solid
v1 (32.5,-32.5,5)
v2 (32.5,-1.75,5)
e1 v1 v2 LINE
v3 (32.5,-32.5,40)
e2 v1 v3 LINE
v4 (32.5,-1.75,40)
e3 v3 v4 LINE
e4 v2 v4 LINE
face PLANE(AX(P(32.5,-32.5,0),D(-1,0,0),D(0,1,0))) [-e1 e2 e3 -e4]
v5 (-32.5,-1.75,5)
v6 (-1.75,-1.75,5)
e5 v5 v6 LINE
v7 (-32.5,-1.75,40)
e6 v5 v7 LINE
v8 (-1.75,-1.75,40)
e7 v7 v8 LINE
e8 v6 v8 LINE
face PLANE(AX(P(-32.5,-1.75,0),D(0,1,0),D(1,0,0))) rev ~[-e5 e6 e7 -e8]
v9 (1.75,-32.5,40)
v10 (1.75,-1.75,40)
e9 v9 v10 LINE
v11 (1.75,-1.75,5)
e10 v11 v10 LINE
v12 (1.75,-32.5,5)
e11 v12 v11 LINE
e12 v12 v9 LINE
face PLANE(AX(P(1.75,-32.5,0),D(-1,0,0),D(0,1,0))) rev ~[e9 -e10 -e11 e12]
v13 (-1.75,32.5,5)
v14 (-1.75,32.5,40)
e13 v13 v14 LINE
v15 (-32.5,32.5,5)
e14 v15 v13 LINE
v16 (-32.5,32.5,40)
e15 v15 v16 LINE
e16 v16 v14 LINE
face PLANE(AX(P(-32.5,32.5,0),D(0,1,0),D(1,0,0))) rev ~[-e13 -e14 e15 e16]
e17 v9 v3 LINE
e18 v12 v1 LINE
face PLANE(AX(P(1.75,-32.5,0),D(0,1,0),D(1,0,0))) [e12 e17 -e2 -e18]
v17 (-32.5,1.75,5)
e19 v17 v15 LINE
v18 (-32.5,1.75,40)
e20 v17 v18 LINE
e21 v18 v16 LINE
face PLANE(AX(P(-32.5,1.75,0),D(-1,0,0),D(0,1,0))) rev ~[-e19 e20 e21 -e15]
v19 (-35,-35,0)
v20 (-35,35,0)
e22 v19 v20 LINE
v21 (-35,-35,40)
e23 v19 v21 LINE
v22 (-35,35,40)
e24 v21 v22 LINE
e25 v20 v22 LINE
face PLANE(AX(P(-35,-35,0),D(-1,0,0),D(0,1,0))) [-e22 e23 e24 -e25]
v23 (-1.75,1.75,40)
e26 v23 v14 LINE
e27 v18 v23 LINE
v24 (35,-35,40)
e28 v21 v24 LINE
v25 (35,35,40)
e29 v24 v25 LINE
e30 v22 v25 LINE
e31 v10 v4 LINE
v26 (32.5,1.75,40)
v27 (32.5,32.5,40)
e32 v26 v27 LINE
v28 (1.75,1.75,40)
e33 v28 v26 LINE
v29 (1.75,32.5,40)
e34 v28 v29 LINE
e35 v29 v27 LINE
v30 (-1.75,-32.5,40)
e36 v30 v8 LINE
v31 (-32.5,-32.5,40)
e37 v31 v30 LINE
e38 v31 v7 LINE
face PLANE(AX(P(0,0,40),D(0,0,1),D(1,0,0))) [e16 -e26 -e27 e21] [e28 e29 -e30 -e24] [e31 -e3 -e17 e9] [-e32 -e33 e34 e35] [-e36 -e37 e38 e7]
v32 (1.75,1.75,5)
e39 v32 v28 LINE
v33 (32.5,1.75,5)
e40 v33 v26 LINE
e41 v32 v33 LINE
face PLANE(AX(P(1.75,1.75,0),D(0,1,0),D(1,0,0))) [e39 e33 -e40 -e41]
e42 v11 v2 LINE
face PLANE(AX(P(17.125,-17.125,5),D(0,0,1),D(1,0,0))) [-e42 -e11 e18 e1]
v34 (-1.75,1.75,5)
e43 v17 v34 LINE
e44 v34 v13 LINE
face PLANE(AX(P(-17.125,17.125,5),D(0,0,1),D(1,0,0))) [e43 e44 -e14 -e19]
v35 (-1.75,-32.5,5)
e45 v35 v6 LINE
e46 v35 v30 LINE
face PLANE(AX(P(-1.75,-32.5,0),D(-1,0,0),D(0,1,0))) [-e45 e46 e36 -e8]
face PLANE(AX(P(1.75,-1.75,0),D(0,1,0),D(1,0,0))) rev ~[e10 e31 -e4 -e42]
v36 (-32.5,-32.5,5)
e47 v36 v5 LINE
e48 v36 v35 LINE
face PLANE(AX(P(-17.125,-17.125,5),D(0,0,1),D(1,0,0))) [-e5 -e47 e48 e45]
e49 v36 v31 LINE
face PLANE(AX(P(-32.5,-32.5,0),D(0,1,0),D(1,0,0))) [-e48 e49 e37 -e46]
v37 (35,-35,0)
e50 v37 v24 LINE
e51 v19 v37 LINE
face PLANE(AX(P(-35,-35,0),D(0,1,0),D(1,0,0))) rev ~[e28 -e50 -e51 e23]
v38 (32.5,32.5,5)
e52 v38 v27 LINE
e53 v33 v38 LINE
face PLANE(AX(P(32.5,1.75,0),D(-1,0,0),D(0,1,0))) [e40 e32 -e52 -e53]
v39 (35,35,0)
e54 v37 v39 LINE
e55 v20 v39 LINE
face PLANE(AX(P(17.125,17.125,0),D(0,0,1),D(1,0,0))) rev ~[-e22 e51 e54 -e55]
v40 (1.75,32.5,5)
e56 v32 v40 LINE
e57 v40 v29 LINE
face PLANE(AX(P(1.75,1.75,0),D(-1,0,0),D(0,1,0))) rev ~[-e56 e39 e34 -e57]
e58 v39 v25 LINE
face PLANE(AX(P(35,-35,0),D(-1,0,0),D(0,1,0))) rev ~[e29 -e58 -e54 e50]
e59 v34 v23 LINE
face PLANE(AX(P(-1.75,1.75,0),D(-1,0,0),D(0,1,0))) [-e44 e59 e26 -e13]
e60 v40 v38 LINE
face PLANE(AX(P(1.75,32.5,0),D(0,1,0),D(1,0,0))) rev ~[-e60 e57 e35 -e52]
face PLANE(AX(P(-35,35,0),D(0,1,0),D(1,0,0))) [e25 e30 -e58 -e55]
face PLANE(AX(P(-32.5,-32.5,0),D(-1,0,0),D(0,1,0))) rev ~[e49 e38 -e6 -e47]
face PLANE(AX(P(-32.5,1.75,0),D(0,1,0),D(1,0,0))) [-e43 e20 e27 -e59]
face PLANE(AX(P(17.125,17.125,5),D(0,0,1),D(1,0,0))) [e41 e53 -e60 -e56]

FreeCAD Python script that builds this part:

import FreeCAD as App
import Part
import Sketcher
from FreeCAD import Vector
Q = App.Units.Quantity


def add_polygon(sketch, points):
    """Adds a closed chain of lines whose ends are joined by coincident constraints."""
    first, n = sketch.GeometryCount, len(points)
    for a, b in zip(points, points[1:] + points[:1]):
        sketch.addGeometry(Part.LineSegment(App.Vector(*a, 0), App.Vector(*b, 0)), False)
    for i in range(n):
        sketch.addConstraint(Sketcher.Constraint("Coincident", first + i, 2, first + (i + 1) % n, 1))

doc = App.newDocument("Part")
body = doc.addObject("PartDesign::Body", "Body")

# Sketch on XY plane
sketch1 = body.newObject("Sketcher::SketchObject", "Sketch")
sketch1.AttachmentSupport = (doc.getObject("XY_Plane"), [""])
sketch1.MapMode = "FlatFace"
add_polygon(sketch1, [(-35, 35), (-35, -35), (35, -35), (35, 35)])  # lines 0-3
add_polygon(sketch1, [(-2, -32), (-32, -32), (-32, -2), (-2, -2)])  # lines 4-7
add_polygon(sketch1, [(32, -32), (2, -32), (2, -2), (32, -2)])  # lines 8-11
add_polygon(sketch1, [(-2, 2), (-32, 2), (-32, 32), (-2, 32)])  # lines 12-15
add_polygon(sketch1, [(32, 2), (2, 2), (2, 32), (32, 32)])  # lines 16-19
sketch1.addConstraint([
    Sketcher.Constraint("Vertical", 0),
    Sketcher.Constraint("Horizontal", 1),
    Sketcher.Constraint("Vertical", 2),
    Sketcher.Constraint("Horizontal", 3),
    Sketcher.Constraint("Horizontal", 4),
    Sketcher.Constraint("Vertical", 5),
    Sketcher.Constraint("Horizontal", 6),
    Sketcher.Constraint("Vertical", 7),
    Sketcher.Constraint("Horizontal", 8),
    Sketcher.Constraint("Vertical", 9),
    Sketcher.Constraint("Horizontal", 10),
    Sketcher.Constraint("Vertical", 11),
    Sketcher.Constraint("Horizontal", 12),
    Sketcher.Constraint("Vertical", 13),
    Sketcher.Constraint("Horizontal", 14),
    Sketcher.Constraint("Vertical", 15),
    Sketcher.Constraint("Horizontal", 16),
    Sketcher.Constraint("Vertical", 17),
    Sketcher.Constraint("Horizontal", 18),
    Sketcher.Constraint("Vertical", 19),
    Sketcher.Constraint("Symmetric", 0, 2, 2, 2, -1, 1),
    Sketcher.Constraint("Symmetric", 10, 2, 12, 2, -1, 1),
    Sketcher.Constraint("Symmetric", 8, 2, 14, 2, -1, 1),
    Sketcher.Constraint("Symmetric", 6, 2, 16, 2, -1, 1),
    Sketcher.Constraint("Symmetric", 4, 2, 18, 2, -1, 1),
    Sketcher.Constraint("Symmetric", 7, 2, 8, 2, -2),
    Sketcher.Constraint("Symmetric", 5, 2, 10, 2, -2),
    Sketcher.Constraint("Equal", 3, 0),
    Sketcher.Constraint("Equal", 18, 5),
    Sketcher.Constraint("DistanceX", 1, 1, 1, 2, Q("70 mm")),
    Sketcher.Constraint("DistanceX", 4, 2, 4, 1, Q("30.75 mm")),
    Sketcher.Constraint("DistanceX", 4, 2, -1, 1, Q("32.5 mm")),
    Sketcher.Constraint("DistanceY", 4, 2, -1, 1, Q("32.5 mm")),
])
pad1 = body.newObject("PartDesign::Pad", "Pad")
pad1.Profile = sketch1
pad1.Length = 40

# Sketch on XY plane
sketch2 = body.newObject("Sketcher::SketchObject", "Sketch001")
sketch2.AttachmentSupport = (doc.getObject("XY_Plane"), [""])
sketch2.MapMode = "FlatFace"
add_polygon(sketch2, [(2, 32), (2, 2), (32, 2), (32, 32)])  # lines 0-3
add_polygon(sketch2, [(2, -2), (2, -32), (32, -32), (32, -2)])  # lines 4-7
add_polygon(sketch2, [(-32, -2), (-32, -32), (-2, -32), (-2, -2)])  # lines 8-11
add_polygon(sketch2, [(-32, 32), (-32, 2), (-2, 2), (-2, 32)])  # lines 12-15
sketch2.addConstraint([
    Sketcher.Constraint("Vertical", 0),
    Sketcher.Constraint("Horizontal", 1),
    Sketcher.Constraint("Vertical", 2),
    Sketcher.Constraint("Horizontal", 3),
    Sketcher.Constraint("Vertical", 4),
    Sketcher.Constraint("Horizontal", 5),
    Sketcher.Constraint("Vertical", 6),
    Sketcher.Constraint("Horizontal", 7),
    Sketcher.Constraint("Vertical", 8),
    Sketcher.Constraint("Horizontal", 9),
    Sketcher.Constraint("Vertical", 10),
    Sketcher.Constraint("Horizontal", 11),
    Sketcher.Constraint("Vertical", 12),
    Sketcher.Constraint("Horizontal", 13),
    Sketcher.Constraint("Vertical", 14),
    Sketcher.Constraint("Horizontal", 15),
    Sketcher.Constraint("Symmetric", 2, 2, 8, 2, -1, 1),
    Sketcher.Constraint("Symmetric", 0, 2, 10, 2, -1, 1),
    Sketcher.Constraint("Symmetric", 6, 2, 12, 2, -1, 1),
    Sketcher.Constraint("Symmetric", 4, 2, 14, 2, -1, 1),
    Sketcher.Constraint("Symmetric", 5, 2, 8, 2, -2),
    Sketcher.Constraint("Symmetric", 7, 2, 10, 2, -2),
    Sketcher.Constraint("Equal", 15, 0),
    Sketcher.Constraint("DistanceY", 4, 2, 3, 2, Q("65 mm")),
    Sketcher.Constraint("DistanceX", 8, 2, 5, 2, Q("65 mm")),
    Sketcher.Constraint("DistanceX", 1, 1, 1, 2, Q("30.75 mm")),
])
pad2 = body.newObject("PartDesign::Pad", "Pad001")
pad2.Profile = sketch2
pad2.Length = 5

doc.recompute()
